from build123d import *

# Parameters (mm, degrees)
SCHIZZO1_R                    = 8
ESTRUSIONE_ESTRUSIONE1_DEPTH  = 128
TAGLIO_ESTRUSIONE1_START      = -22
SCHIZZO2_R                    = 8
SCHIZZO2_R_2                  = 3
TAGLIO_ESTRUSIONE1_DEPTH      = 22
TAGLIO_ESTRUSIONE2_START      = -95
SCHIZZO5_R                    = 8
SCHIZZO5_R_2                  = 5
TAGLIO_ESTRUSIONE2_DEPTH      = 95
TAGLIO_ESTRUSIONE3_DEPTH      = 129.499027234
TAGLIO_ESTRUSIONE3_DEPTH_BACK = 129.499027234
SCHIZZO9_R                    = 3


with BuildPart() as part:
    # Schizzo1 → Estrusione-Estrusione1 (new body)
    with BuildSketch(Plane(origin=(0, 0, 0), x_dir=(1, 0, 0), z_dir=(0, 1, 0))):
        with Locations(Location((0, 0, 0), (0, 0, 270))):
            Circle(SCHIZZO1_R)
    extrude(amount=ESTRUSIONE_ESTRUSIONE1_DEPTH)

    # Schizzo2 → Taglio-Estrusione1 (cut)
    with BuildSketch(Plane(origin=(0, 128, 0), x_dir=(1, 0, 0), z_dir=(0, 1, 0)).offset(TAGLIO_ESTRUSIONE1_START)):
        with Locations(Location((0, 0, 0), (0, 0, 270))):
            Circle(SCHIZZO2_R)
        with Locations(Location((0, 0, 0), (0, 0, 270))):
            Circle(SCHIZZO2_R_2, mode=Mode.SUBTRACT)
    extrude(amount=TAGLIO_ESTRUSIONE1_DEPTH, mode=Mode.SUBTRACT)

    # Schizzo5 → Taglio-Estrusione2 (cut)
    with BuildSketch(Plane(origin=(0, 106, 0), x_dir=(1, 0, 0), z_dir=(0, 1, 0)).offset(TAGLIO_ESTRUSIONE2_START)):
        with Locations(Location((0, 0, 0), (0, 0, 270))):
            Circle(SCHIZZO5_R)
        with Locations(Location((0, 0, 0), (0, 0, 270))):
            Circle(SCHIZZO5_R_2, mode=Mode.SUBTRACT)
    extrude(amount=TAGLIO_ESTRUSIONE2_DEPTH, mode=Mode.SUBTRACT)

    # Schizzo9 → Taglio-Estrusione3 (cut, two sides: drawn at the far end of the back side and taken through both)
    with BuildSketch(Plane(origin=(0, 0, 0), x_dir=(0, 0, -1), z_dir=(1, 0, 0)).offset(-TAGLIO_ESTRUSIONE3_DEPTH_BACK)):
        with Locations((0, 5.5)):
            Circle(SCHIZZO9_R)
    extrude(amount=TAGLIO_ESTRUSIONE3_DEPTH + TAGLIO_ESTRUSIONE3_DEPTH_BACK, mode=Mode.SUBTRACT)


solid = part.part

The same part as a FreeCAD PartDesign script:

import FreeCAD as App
import Part
import Sketcher

doc = App.newDocument("Part")
body = doc.addObject("PartDesign::Body", "Body")

sketch1 = body.newObject("Sketcher::SketchObject", "Sketch")
sketch1.AttachmentSupport = (doc.getObject("XZ_Plane"), [""])
sketch1.MapMode = "FlatFace"
sketch1.addGeometry(Part.Circle(App.Vector(0, 0, 0), App.Vector(0, 0, 1), 8), False)
sketch1.addConstraint([
    Sketcher.Constraint("Coincident", 0, 3, -1, 1),
    Sketcher.Constraint("Diameter", 0, 16.0),
])
pad1 = body.newObject("PartDesign::Pad", "Pad")
pad1.Profile = sketch1
pad1.Length = 128
pad1.Reversed = True

sketch2 = body.newObject("Sketcher::SketchObject", "Sketch001")
sketch2.AttachmentSupport = (doc.getObject("XZ_Plane"), [""])
sketch2.MapMode = "FlatFace"
sketch2.AttachmentOffset = App.Placement(App.Vector(0, 0, -106), App.Rotation())
sketch2.addGeometry([
    Part.Circle(App.Vector(0, 0, 0), App.Vector(0, 0, 1), 8),
    Part.Circle(App.Vector(0, 0, 0), App.Vector(0, 0, 1), 3),
], False)
sketch2.addConstraint([
    Sketcher.Constraint("Coincident", 0, 3, -1, 1),
    Sketcher.Constraint("Coincident", 1, 3, -1, 1),
    Sketcher.Constraint("Diameter", 0, 16.0),
    Sketcher.Constraint("Diameter", 1, 6.0),
])
pocket1 = body.newObject("PartDesign::Pocket", "Pocket")
pocket1.Profile = sketch2
pocket1.Length = 22

sketch3 = body.newObject("Sketcher::SketchObject", "Sketch002")
sketch3.AttachmentSupport = (doc.getObject("XZ_Plane"), [""])
sketch3.MapMode = "FlatFace"
sketch3.AttachmentOffset = App.Placement(App.Vector(0, 0, -11), App.Rotation())
sketch3.addGeometry([
    Part.Circle(App.Vector(0, 0, 0), App.Vector(0, 0, 1), 8),
    Part.Circle(App.Vector(0, 0, 0), App.Vector(0, 0, 1), 5),
], False)
sketch3.addConstraint([
    Sketcher.Constraint("Coincident", 0, 3, -1, 1),
    Sketcher.Constraint("Coincident", 1, 3, -1, 1),
    Sketcher.Constraint("Diameter", 0, 16.0),
    Sketcher.Constraint("Diameter", 1, 10.0),
])
pocket2 = body.newObject("PartDesign::Pocket", "Pocket001")
pocket2.Profile = sketch3
pocket2.Length = 95

sketch4 = body.newObject("Sketcher::SketchObject", "Sketch003")
sketch4.AttachmentSupport = (doc.getObject("YZ_Plane"), [""])
sketch4.MapMode = "FlatFace"
sketch4.addGeometry(Part.Circle(App.Vector(5.5, 0, 0), App.Vector(0, 0, 1), 3), False)
sketch4.addConstraint([
    Sketcher.Constraint("PointOnObject", 0, 3, -1),
    Sketcher.Constraint("Diameter", 0, 6.0),
    Sketcher.Constraint("DistanceX", -1, 1, 0, 3, 5.5),
])
pocket3 = body.newObject("PartDesign::Pocket", "Pocket002")
pocket3.Profile = sketch4
pocket3.Type = "ThroughAll"
pocket3.Midplane = True

doc.recompute()
